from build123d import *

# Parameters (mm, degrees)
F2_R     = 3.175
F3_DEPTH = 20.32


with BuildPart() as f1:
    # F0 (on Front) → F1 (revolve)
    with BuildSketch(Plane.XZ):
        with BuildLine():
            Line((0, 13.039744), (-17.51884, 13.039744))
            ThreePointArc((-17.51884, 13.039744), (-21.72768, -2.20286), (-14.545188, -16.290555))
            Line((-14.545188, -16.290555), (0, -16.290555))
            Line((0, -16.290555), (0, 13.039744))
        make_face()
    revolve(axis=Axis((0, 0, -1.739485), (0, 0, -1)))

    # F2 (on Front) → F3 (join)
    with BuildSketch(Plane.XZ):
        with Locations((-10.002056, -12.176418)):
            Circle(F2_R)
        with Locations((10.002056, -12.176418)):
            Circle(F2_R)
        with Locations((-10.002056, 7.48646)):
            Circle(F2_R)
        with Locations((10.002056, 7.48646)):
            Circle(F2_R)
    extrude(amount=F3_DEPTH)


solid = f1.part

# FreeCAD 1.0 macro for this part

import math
import FreeCAD as App
import Part
import Sketcher
from FreeCAD import Vector
Q = App.Units.Quantity

doc = App.newDocument("Part")
body = doc.addObject("PartDesign::Body", "Body")

# Sketch on XZ plane
sketch1 = body.newObject("Sketcher::SketchObject", "Sketch")
sketch1.AttachmentSupport = (doc.getObject("XZ_Plane"), [""])
sketch1.MapMode = "FlatFace"
sketch1.addGeometry([
    Part.LineSegment(Vector(0, 13.039744, 0), Vector(-17.51884, 13.039744, 0)),
    Part.ArcOfCircle(Part.Circle(Vector(0.000001, 0, 0), Vector(0, 0, 1), 21.839064), math.radians(143.338699), math.radians(228.239602)),
    Part.LineSegment(Vector(-14.545188, -16.290555, 0), Vector(0, -16.290555, 0)),
    Part.LineSegment(Vector(0, -16.290555, 0), Vector(0, 13.039744, 0)),
], False)
sketch1.addConstraint([
    Sketcher.Constraint("Coincident", 0, 2, 1, 1),
    Sketcher.Constraint("Coincident", 1, 2, 2, 1),
    Sketcher.Constraint("Coincident", 2, 2, 3, 1),
    Sketcher.Constraint("Coincident", 3, 2, 0, 1),
    Sketcher.Constraint("Horizontal", 0),
    Sketcher.Constraint("Horizontal", 2),
    Sketcher.Constraint("Vertical", 3),
    Sketcher.Constraint("Coincident", 1, 3, -1, 1),
    Sketcher.Constraint("PointOnObject", 2, 2, -2),
    Sketcher.Constraint("DistanceY", 3, 1, 3, 2, 29.330299),
    Sketcher.Constraint("Radius", 1, 21.839064),
    Sketcher.Constraint("DistanceX", 0, 2, 0, 1, 17.51884),
])
revolution = body.newObject("PartDesign::Revolution", "Revolution")
revolution.Profile = sketch1
revolution.ReferenceAxis = (sketch1, ["V_Axis"])
revolution.Angle = 360

# Sketch on XZ plane
sketch2 = body.newObject("Sketcher::SketchObject", "Sketch001")
sketch2.AttachmentSupport = (doc.getObject("XZ_Plane"), [""])
sketch2.MapMode = "FlatFace"
sketch2.addGeometry([
    Part.Circle(Vector(-10.002056, -12.176418, 0), Vector(0, 0, 1), 3.175),
    Part.Circle(Vector(10.002056, -12.176418, 0), Vector(0, 0, 1), 3.175),
    Part.Circle(Vector(-10.002056, 7.48646, 0), Vector(0, 0, 1), 3.175),
    Part.Circle(Vector(10.002056, 7.48646, 0), Vector(0, 0, 1), 3.175),
], False)
sketch2.addConstraint([
    Sketcher.Constraint("Equal", 0, 1),
    Sketcher.Constraint("Equal", 1, 2),
    Sketcher.Constraint("Equal", 2, 3),
    Sketcher.Constraint("Symmetric", 0, 3, 1, 3, -2),
    Sketcher.Constraint("Symmetric", 2, 3, 3, 3, -2),
    Sketcher.Constraint("Vertical", 0, 3, 2, 3),
    Sketcher.Constraint("Diameter", 0, Q("0.25 in")),
    Sketcher.Constraint("DistanceY", -1, 1, 2, 3, 7.48646),
    Sketcher.Constraint("DistanceX", 0, 3, 1, 3, 20.004112),
    Sketcher.Constraint("DistanceY", 0, 3, -1, 1, 12.176418),
])
pad1 = body.newObject("PartDesign::Pad", "Pad")
pad1.Profile = sketch2
pad1.Length = Q("0.8 in")

doc.recompute()
